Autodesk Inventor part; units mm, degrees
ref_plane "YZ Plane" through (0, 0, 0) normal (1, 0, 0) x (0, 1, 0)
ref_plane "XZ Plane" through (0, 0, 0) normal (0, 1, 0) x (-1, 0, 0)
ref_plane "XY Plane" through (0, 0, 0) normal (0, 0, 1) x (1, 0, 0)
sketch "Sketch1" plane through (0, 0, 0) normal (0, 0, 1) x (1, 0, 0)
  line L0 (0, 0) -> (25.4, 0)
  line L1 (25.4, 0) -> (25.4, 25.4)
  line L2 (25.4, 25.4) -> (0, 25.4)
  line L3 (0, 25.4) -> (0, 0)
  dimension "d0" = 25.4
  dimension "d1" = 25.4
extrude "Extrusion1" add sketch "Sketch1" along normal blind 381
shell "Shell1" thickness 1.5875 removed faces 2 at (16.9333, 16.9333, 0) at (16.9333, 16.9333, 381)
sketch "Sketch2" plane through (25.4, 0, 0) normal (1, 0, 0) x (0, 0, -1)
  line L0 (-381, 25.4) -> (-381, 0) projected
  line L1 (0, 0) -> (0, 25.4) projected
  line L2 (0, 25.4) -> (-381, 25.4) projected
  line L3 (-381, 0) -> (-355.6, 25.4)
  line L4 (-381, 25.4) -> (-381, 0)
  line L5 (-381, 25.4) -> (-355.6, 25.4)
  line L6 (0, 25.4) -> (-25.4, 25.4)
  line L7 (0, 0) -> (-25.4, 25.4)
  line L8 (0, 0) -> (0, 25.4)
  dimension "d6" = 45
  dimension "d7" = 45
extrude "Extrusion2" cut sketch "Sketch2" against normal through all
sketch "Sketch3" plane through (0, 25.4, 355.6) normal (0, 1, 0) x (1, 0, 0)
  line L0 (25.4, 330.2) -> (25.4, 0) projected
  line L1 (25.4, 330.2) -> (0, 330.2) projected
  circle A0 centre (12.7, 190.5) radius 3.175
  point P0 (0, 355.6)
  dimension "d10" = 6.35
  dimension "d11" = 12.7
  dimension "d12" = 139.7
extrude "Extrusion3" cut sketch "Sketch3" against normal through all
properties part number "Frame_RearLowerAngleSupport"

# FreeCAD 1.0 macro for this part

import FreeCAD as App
import Part
import Sketcher

V = App.Vector
Q = App.Units.Quantity


def faces_at(feature, points):
    """Names of the faces that lie closest to the given points."""
    faces = feature.Shape.Faces
    near = lambda p: min(range(len(faces)), key=lambda i: faces[i].distToShape(Part.Vertex(*p))[0])
    return sorted({f"Face{near(p) + 1}" for p in points})


def add_polygon(sketch, points):
    """Adds a closed chain of lines whose ends are joined by coincident constraints."""
    first, n = sketch.GeometryCount, len(points)
    for a, b in zip(points, points[1:] + points[:1]):
        sketch.addGeometry(Part.LineSegment(App.Vector(*a, 0), App.Vector(*b, 0)), False)
    for i in range(n):
        sketch.addConstraint(Sketcher.Constraint("Coincident", first + i, 2, first + (i + 1) % n, 1))

doc = App.newDocument("Part")
body = doc.addObject("PartDesign::Body", "Body")

sketch1 = doc.addObject("Sketcher::SketchObject", "Sketch")
body.addObject(sketch1)
sketch1.AttachmentSupport = (doc.XY_Plane, [""])
sketch1.MapMode = "FlatFace"
add_polygon(sketch1, [(0, 25), (0, 0), (25, 0), (25, 25)])
sketch1.addConstraint([
    Sketcher.Constraint("Vertical", 0),
    Sketcher.Constraint("Horizontal", 1),
    Sketcher.Constraint("Vertical", 2),
    Sketcher.Constraint("Horizontal", 3),
    Sketcher.Constraint("Coincident", 0, 2, -1, 1),
    Sketcher.Constraint("Equal", 3, 0),
    Sketcher.Constraint("DistanceX", 1, 1, 1, 2, Q("1 in")),
])
pad1 = doc.addObject("PartDesign::Pad", "Pad")
body.addObject(pad1)
pad1.Profile = sketch1
pad1.Length = Q("15 in")
doc.recompute()

thickness = doc.addObject("PartDesign::Thickness", "Thickness")
body.addObject(thickness)
thickness.Base = (pad1, faces_at(pad1, [(16.933, 16.933, 0), (16.933, 16.933, 381)]))
thickness.Value = Q("0.0625 in")
thickness.Reversed = True
thickness.Join = "Intersection"

sketch2 = doc.addObject("Sketcher::SketchObject", "Sketch001")
body.addObject(sketch2)
sketch2.AttachmentSupport = (doc.YZ_Plane, [""])
sketch2.MapMode = "FlatFace"
sketch2.AttachmentOffset = App.Placement(V(0, 0, 1 * 25.4), App.Rotation())
add_polygon(sketch2, [(25, 356), (25, 381), (0, 381)])
add_polygon(sketch2, [(25, 0), (25, 25), (0, 0)])
sketch2.addConstraint([
    Sketcher.Constraint("Vertical", 0),
    Sketcher.Constraint("Horizontal", 1),
    Sketcher.Constraint("Vertical", 3),
    Sketcher.Constraint("Horizontal", 5),
    Sketcher.Constraint("Coincident", 4, 2, -1, 1),
    Sketcher.Constraint("PointOnObject", 1, 2, -2),
    Sketcher.Constraint("Perpendicular", 2, 4),
    Sketcher.Constraint("Vertical", 2, 2, 3, 2),
    Sketcher.Constraint("Equal", 5, 0),
    Sketcher.Constraint("DistanceX", 1, 2, 1, 1, Q("1 in")),
    Sketcher.Constraint("DistanceY", -1, 1, 0, 2, Q("15 in")),
])
pocket1 = doc.addObject("PartDesign::Pocket", "Pocket")
body.addObject(pocket1)
pocket1.Profile = sketch2
pocket1.Type = "ThroughAll"

sketch3 = doc.addObject("Sketcher::SketchObject", "Sketch002")
body.addObject(sketch3)
sketch3.AttachmentSupport = (doc.XZ_Plane, [""])
sketch3.MapMode = "FlatFace"
sketch3.AttachmentOffset = App.Placement(V(0, 0, -1 * 25.4), App.Rotation())
sketch3.addGeometry(Part.Circle(V(12.7, 165.1, 0), V(0, 0, 1), 3.2), False)
sketch3.addConstraint([
    Sketcher.Constraint("Diameter", 0, Q("0.25 in")),
    Sketcher.Constraint("DistanceX", -1, 1, 0, 3, Q("0.5 in")),
    Sketcher.Constraint("DistanceY", -1, 1, 0, 3, Q("6.5 in")),
])
pocket2 = doc.addObject("PartDesign::Pocket", "Pocket001")
body.addObject(pocket2)
pocket2.Profile = sketch3
pocket2.Type = "ThroughAll"
pocket2.Reversed = True

doc.recompute()
